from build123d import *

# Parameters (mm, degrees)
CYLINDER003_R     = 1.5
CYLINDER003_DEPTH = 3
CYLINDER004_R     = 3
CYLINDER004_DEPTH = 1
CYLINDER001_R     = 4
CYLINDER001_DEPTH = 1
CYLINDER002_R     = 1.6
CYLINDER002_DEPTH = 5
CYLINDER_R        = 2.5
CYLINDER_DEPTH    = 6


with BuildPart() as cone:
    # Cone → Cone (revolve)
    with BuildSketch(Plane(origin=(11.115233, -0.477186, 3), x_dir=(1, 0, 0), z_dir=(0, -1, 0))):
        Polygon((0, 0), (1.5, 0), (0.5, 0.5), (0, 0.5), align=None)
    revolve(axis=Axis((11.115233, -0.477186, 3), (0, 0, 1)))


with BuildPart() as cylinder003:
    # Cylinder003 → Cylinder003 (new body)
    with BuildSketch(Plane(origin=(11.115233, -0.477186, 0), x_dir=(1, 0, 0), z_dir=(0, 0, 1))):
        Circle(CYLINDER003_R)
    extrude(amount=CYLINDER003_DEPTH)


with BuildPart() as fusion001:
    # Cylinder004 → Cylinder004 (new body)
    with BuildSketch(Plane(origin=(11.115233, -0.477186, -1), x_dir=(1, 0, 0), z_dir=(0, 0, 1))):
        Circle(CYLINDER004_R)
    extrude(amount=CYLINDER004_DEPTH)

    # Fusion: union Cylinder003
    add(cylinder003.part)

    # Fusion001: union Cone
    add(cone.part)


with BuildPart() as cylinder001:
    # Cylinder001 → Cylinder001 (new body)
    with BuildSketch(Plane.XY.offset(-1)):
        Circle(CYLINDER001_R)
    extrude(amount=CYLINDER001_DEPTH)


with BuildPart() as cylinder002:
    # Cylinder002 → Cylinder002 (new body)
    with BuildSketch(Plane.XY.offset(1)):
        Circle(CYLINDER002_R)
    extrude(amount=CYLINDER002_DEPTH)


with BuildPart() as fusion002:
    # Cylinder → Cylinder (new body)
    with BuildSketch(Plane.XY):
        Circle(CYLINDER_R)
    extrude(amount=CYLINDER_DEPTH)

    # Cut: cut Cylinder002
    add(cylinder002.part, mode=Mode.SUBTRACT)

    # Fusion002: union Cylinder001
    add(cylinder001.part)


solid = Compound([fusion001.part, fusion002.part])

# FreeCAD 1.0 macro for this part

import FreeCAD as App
import Part
import Sketcher
Q = App.Units.Quantity


def add_polygon(sketch, points):
    """Adds a closed chain of lines whose ends are joined by coincident constraints."""
    first, n = sketch.GeometryCount, len(points)
    for a, b in zip(points, points[1:] + points[:1]):
        sketch.addGeometry(Part.LineSegment(App.Vector(*a, 0), App.Vector(*b, 0)), False)
    for i in range(n):
        sketch.addConstraint(Sketcher.Constraint("Coincident", first + i, 2, first + (i + 1) % n, 1))

doc = App.newDocument("Part")
params = doc.addObject("Spreadsheet::Sheet", "Params")
for row, (alias, value) in enumerate([
    ("sketch1_width", "1.5 mm"),
    ("sketch1_width2", "0.5 mm"),
    ("revolution_angle", "360 deg"),
    ("sketch2_diameter", "3 mm"),
    ("pad1_length", "3 mm"),
    ("sketch3_diameter", "6 mm"),
    ("pad2_length", "1 mm"),
    ("sketch4_diameter", "8 mm"),
    ("pad3_length", "1 mm"),
    ("sketch5_diameter", "3.2 mm"),
    ("pad4_length", "5 mm"),
    ("sketch6_diameter", "5 mm"),
    ("pad5_length", "6 mm"),
], start=1):
    params.set(f"A{row}", alias)
    params.set(f"B{row}", "=" + value)
    params.setAlias(f"B{row}", alias)

body = doc.addObject("PartDesign::Body", "Body")

sketch1 = body.newObject("Sketcher::SketchObject", "Sketch")
sketch1.AttachmentSupport = (doc.getObject("XZ_Plane"), [""])
sketch1.MapMode = "FlatFace"
sketch1.AttachmentOffset = App.Placement(App.Vector(0, 0, 0.477186), App.Rotation())
add_polygon(sketch1, [(11.1, 3), (12.6, 3), (11.6, 3.5), (11.1, 3.5)])
sketch1.addGeometry(Part.LineSegment(App.Vector(11.1, 3, 0), App.Vector(11.1, 3.5, 0)), True)
sketch1.addConstraint([
    Sketcher.Constraint("Horizontal", 0),
    Sketcher.Constraint("Horizontal", 2),
    Sketcher.Constraint("Vertical", 3),
    Sketcher.Constraint("Vertical", 4),
    Sketcher.Constraint("Coincident", 4, 1, 3, 2),
    Sketcher.Constraint("Horizontal", 1, 2, 4, 2),
    Sketcher.Constraint("Equal", 2, 3),
    Sketcher.Constraint("DistanceX", 0, 1, 0, 2, Q("1.5 mm")),
    Sketcher.Constraint("DistanceX", 2, 2, 2, 1, Q("0.5 mm")),
    Sketcher.Constraint("DistanceY", -1, 1, 0, 2, Q("3 mm")),
    Sketcher.Constraint("DistanceX", -1, 1, 0, 2, Q("12.615233 mm")),
])
sketch1.setExpression("Constraints[11]", "Params.sketch1_width")
sketch1.setExpression("Constraints[12]", "Params.sketch1_width2")
revolution = body.newObject("PartDesign::Revolution", "Revolution")
revolution.Profile = sketch1
revolution.ReferenceAxis = (sketch1, ["Axis0"])
revolution.setExpression("Angle", "Params.revolution_angle")
body2 = doc.addObject("PartDesign::Body", "Body001")

sketch2 = body2.newObject("Sketcher::SketchObject", "Sketch001")
sketch2.AttachmentSupport = (doc.getObject("XY_Plane001"), [""])
sketch2.MapMode = "FlatFace"
sketch2.addGeometry(Part.Circle(App.Vector(11.1, -0.5, 0), App.Vector(0, 0, 1), 1.5), False)
sketch2.addConstraint([
    Sketcher.Constraint("Diameter", 0, Q("3 mm")),
    Sketcher.Constraint("DistanceX", -1, 1, 0, 3, Q("11.115233 mm")),
    Sketcher.Constraint("DistanceY", 0, 3, -1, 1, Q("0.477186 mm")),
])
sketch2.setExpression("Constraints[0]", "Params.sketch2_diameter")
pad1 = body2.newObject("PartDesign::Pad", "Pad")
pad1.Profile = sketch2
pad1.setExpression("Length", "Params.pad1_length")
body3 = doc.addObject("PartDesign::Body", "Body002")

sketch3 = body3.newObject("Sketcher::SketchObject", "Sketch002")
sketch3.AttachmentSupport = (doc.getObject("XY_Plane002"), [""])
sketch3.MapMode = "FlatFace"
sketch3.AttachmentOffset = App.Placement(App.Vector(0, 0, -1), App.Rotation())
sketch3.addGeometry(Part.Circle(App.Vector(11.1, -0.5, 0), App.Vector(0, 0, 1), 3), False)
sketch3.addConstraint([
    Sketcher.Constraint("Diameter", 0, Q("6 mm")),
    Sketcher.Constraint("DistanceX", -1, 1, 0, 3, Q("11.115233 mm")),
    Sketcher.Constraint("DistanceY", 0, 3, -1, 1, Q("0.477186 mm")),
])
sketch3.setExpression("Constraints[0]", "Params.sketch3_diameter")
pad2 = body3.newObject("PartDesign::Pad", "Pad001")
pad2.Profile = sketch3
pad2.setExpression("Length", "Params.pad2_length")
doc.recompute()

boolean = body3.newObject("PartDesign::Boolean", "Boolean")
boolean.Type = "Fuse"
boolean.addObjects([body2])
doc.recompute()

boolean2 = body3.newObject("PartDesign::Boolean", "Boolean001")
boolean2.Type = "Fuse"
boolean2.addObjects([body])
body4 = doc.addObject("PartDesign::Body", "Body003")

sketch4 = body4.newObject("Sketcher::SketchObject", "Sketch003")
sketch4.AttachmentSupport = (doc.getObject("XY_Plane003"), [""])
sketch4.MapMode = "FlatFace"
sketch4.AttachmentOffset = App.Placement(App.Vector(0, 0, -1), App.Rotation())
sketch4.addGeometry(Part.Circle(App.Vector(0, 0, 0), App.Vector(0, 0, 1), 4), False)
sketch4.addConstraint([
    Sketcher.Constraint("Coincident", 0, 3, -1, 1),
    Sketcher.Constraint("Diameter", 0, Q("8 mm")),
])
sketch4.setExpression("Constraints[1]", "Params.sketch4_diameter")
pad3 = body4.newObject("PartDesign::Pad", "Pad002")
pad3.Profile = sketch4
pad3.setExpression("Length", "Params.pad3_length")
body5 = doc.addObject("PartDesign::Body", "Body004")

sketch5 = body5.newObject("Sketcher::SketchObject", "Sketch004")
sketch5.AttachmentSupport = (doc.getObject("XY_Plane004"), [""])
sketch5.MapMode = "FlatFace"
sketch5.AttachmentOffset = App.Placement(App.Vector(0, 0, 1), App.Rotation())
sketch5.addGeometry(Part.Circle(App.Vector(0, 0, 0), App.Vector(0, 0, 1), 1.6), False)
sketch5.addConstraint([
    Sketcher.Constraint("Coincident", 0, 3, -1, 1),
    Sketcher.Constraint("Diameter", 0, Q("3.2 mm")),
])
sketch5.setExpression("Constraints[1]", "Params.sketch5_diameter")
pad4 = body5.newObject("PartDesign::Pad", "Pad003")
pad4.Profile = sketch5
pad4.setExpression("Length", "Params.pad4_length")
body6 = doc.addObject("PartDesign::Body", "Body005")

sketch6 = body6.newObject("Sketcher::SketchObject", "Sketch005")
sketch6.AttachmentSupport = (doc.getObject("XY_Plane005"), [""])
sketch6.MapMode = "FlatFace"
sketch6.addGeometry(Part.Circle(App.Vector(0, 0, 0), App.Vector(0, 0, 1), 2.5), False)
sketch6.addConstraint([
    Sketcher.Constraint("Coincident", 0, 3, -1, 1),
    Sketcher.Constraint("Diameter", 0, Q("5 mm")),
])
sketch6.setExpression("Constraints[1]", "Params.sketch6_diameter")
pad5 = body6.newObject("PartDesign::Pad", "Pad004")
pad5.Profile = sketch6
pad5.setExpression("Length", "Params.pad5_length")
doc.recompute()

boolean3 = body6.newObject("PartDesign::Boolean", "Boolean002")
boolean3.Type = "Cut"
boolean3.addObjects([body5])
doc.recompute()

boolean4 = body6.newObject("PartDesign::Boolean", "Boolean003")
boolean4.Type = "Fuse"
boolean4.addObjects([body4])

doc.recompute()
